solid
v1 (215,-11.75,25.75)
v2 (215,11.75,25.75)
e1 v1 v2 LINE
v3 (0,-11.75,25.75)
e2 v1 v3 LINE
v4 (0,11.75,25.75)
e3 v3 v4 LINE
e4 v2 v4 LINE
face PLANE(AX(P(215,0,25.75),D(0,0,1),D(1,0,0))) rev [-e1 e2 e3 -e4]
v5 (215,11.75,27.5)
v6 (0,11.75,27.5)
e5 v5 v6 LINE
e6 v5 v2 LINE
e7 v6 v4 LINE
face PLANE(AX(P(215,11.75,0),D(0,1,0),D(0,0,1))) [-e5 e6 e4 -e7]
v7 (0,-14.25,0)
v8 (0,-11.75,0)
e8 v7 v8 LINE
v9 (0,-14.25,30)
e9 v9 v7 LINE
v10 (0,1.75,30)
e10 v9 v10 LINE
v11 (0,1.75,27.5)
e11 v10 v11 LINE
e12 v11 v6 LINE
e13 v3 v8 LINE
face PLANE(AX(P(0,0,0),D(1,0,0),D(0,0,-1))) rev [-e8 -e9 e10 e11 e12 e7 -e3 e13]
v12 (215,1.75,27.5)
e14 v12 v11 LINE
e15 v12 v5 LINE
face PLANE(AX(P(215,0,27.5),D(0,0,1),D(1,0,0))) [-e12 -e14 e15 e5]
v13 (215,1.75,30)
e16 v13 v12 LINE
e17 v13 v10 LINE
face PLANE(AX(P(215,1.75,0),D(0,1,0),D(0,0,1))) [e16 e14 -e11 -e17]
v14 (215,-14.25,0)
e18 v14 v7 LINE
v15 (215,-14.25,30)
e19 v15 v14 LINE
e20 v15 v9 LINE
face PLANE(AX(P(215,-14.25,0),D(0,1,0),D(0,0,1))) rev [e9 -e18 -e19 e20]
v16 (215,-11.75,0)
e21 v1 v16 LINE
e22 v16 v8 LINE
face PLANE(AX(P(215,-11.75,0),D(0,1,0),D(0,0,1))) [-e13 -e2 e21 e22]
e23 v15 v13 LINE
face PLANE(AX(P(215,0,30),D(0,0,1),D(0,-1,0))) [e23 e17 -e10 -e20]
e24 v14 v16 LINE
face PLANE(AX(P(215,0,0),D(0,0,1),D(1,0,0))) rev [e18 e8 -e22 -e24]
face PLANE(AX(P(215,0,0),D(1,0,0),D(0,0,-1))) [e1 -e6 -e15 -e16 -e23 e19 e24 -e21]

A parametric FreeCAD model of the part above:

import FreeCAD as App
import Part
import Sketcher


def add_polygon(sketch, points):
    """Adds a closed chain of lines whose ends are joined by coincident constraints."""
    first, n = sketch.GeometryCount, len(points)
    for a, b in zip(points, points[1:] + points[:1]):
        sketch.addGeometry(Part.LineSegment(App.Vector(*a, 0), App.Vector(*b, 0)), False)
    for i in range(n):
        sketch.addConstraint(Sketcher.Constraint("Coincident", first + i, 2, first + (i + 1) % n, 1))

doc = App.newDocument("Part")
body = doc.addObject("PartDesign::Body", "Body")

# Sketch on YZ plane
sketch1 = body.newObject("Sketcher::SketchObject", "Sketch")
sketch1.AttachmentSupport = (doc.getObject("YZ_Plane"), [""])
sketch1.MapMode = "FlatFace"
add_polygon(sketch1, [(1.8, 27.5), (1.8, 30), (-14.2, 30), (-14.2, 0), (-11.8, 0), (-11.8, 25.8), (11.8, 25.8), (11.8, 27.5)])  # lines 0-7
sketch1.addConstraint(Sketcher.Constraint("Vertical", 0))
sketch1.addConstraint(Sketcher.Constraint("Horizontal", 1))
sketch1.addConstraint(Sketcher.Constraint("Vertical", 2))
sketch1.addConstraint(Sketcher.Constraint("Horizontal", 3))
sketch1.addConstraint(Sketcher.Constraint("Vertical", 4))
sketch1.addConstraint(Sketcher.Constraint("Horizontal", 5))
sketch1.addConstraint(Sketcher.Constraint("Vertical", 6))
sketch1.addConstraint(Sketcher.Constraint("Horizontal", 7))
sketch1.addConstraint(Sketcher.Constraint("PointOnObject", 2, 2, -1))
sketch1.addConstraint(Sketcher.Constraint("Equal", 3, 0))
sketch1.addConstraint(Sketcher.Constraint("DistanceX", 1, 2, 1, 1, 16.0))
sketch1.addConstraint(Sketcher.Constraint("DistanceX", 7, 2, 7, 1, 10.0))
sketch1.addConstraint(Sketcher.Constraint("DistanceY", 2, 2, 2, 1, 30.0))
sketch1.addConstraint(Sketcher.Constraint("DistanceX", 3, 1, 3, 2, 2.5))
sketch1.addConstraint(Sketcher.Constraint("DistanceY", 4, 1, 4, 2, 25.75))
sketch1.addConstraint(Sketcher.Constraint("DistanceX", -1, 1, 0, 2, 1.75))
pad1 = body.newObject("PartDesign::Pad", "Pad")
pad1.Profile = sketch1
pad1.Length = 215

doc.recompute()
